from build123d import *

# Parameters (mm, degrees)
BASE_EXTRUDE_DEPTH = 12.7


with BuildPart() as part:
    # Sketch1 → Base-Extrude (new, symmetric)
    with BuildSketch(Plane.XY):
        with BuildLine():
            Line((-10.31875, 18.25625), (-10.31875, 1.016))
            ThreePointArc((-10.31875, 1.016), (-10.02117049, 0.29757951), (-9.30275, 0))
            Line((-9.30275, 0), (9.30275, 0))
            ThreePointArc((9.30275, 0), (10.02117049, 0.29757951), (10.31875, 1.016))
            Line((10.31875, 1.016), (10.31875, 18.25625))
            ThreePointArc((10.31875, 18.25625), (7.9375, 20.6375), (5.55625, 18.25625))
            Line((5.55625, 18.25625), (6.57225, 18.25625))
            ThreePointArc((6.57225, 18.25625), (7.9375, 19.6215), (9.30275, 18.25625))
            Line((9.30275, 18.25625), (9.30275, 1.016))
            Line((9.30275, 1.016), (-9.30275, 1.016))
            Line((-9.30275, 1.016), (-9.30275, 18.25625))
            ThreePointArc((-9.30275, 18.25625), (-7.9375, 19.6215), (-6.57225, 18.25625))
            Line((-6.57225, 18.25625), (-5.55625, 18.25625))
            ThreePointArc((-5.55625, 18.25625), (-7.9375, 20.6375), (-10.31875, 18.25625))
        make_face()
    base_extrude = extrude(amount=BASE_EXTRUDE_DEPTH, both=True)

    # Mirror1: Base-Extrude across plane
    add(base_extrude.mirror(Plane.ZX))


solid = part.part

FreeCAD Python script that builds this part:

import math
import FreeCAD as App
import Part
import Sketcher
Q = App.Units.Quantity

doc = App.newDocument("Part")
params = doc.addObject("Spreadsheet::Sheet", "Params")
for row, (alias, value) in enumerate([
    ("sketch1_radius", "0.04 in"),
    ("sketch1_radius2", "0.09375 in"),
    ("pad1_length", "1 in"),
], start=1):
    params.set(f"A{row}", alias)
    params.set(f"B{row}", "=" + value)
    params.setAlias(f"B{row}", alias)

body = doc.addObject("PartDesign::Body", "Body")

# Sketch on XY plane
sketch1 = body.newObject("Sketcher::SketchObject", "Sketch")
sketch1.AttachmentSupport = (doc.getObject("XY_Plane"), [""])
sketch1.MapMode = "FlatFace"
sketch1.addGeometry([
    Part.LineSegment(App.Vector(-10.3, 18.3, 0), App.Vector(-10.3, 1, 0)),  # 0
    Part.ArcOfCircle(Part.Circle(App.Vector(-9.3, 1, 0), App.Vector(0, 0, 1), 1), math.radians(180), math.radians(270)),  # 1
    Part.LineSegment(App.Vector(-9.3, 0, 0), App.Vector(9.3, 0, 0)),  # 2
    Part.ArcOfCircle(Part.Circle(App.Vector(9.3, 1, 0), App.Vector(0, 0, 1), 1), math.radians(-90), math.radians(0)),  # 3
    Part.LineSegment(App.Vector(10.3, 1, 0), App.Vector(10.3, 18.3, 0)),  # 4
    Part.ArcOfCircle(Part.Circle(App.Vector(7.9, 18.3, 0), App.Vector(0, 0, 1), 2.4), math.radians(0), math.radians(180)),  # 5
    Part.LineSegment(App.Vector(5.6, 18.3, 0), App.Vector(6.6, 18.3, 0)),  # 6
    Part.ArcOfCircle(Part.Circle(App.Vector(7.9, 18.3, 0), App.Vector(0, 0, 1), 1.4), math.radians(0), math.radians(180)),  # 7
    Part.LineSegment(App.Vector(9.3, 18.3, 0), App.Vector(9.3, 1, 0)),  # 8
    Part.LineSegment(App.Vector(9.3, 1, 0), App.Vector(-9.3, 1, 0)),  # 9
    Part.LineSegment(App.Vector(-9.3, 1, 0), App.Vector(-9.3, 18.3, 0)),  # 10
    Part.ArcOfCircle(Part.Circle(App.Vector(-7.9, 18.3, 0), App.Vector(0, 0, 1), 1.4), math.radians(0), math.radians(180)),  # 11
    Part.LineSegment(App.Vector(-6.6, 18.3, 0), App.Vector(-5.6, 18.3, 0)),  # 12
    Part.ArcOfCircle(Part.Circle(App.Vector(-7.9, 18.3, 0), App.Vector(0, 0, 1), 2.4), math.radians(0), math.radians(180)),  # 13
], False)
sketch1.addConstraint([
    Sketcher.Constraint("Tangent", 0, 2, 1, 1),
    Sketcher.Constraint("Tangent", 1, 2, 2, 1),
    Sketcher.Constraint("Tangent", 2, 2, 3, 1),
    Sketcher.Constraint("Tangent", 3, 2, 4, 1),
    Sketcher.Constraint("Tangent", 4, 2, 5, 1),
    Sketcher.Constraint("Coincident", 5, 2, 6, 1),
    Sketcher.Constraint("Coincident", 6, 2, 7, 2),
    Sketcher.Constraint("Tangent", 7, 1, 8, 1),
    Sketcher.Constraint("Coincident", 8, 2, 9, 1),
    Sketcher.Constraint("Coincident", 9, 2, 10, 1),
    Sketcher.Constraint("Tangent", 10, 2, 11, 2),
    Sketcher.Constraint("Coincident", 11, 1, 12, 1),
    Sketcher.Constraint("Coincident", 12, 2, 13, 1),
    Sketcher.Constraint("Tangent", 13, 2, 0, 1),
    Sketcher.Constraint("Vertical", 0),
    Sketcher.Constraint("Horizontal", 2),
    Sketcher.Constraint("Vertical", 4),
    Sketcher.Constraint("Horizontal", 6),
    Sketcher.Constraint("Vertical", 8),
    Sketcher.Constraint("Horizontal", 9),
    Sketcher.Constraint("Vertical", 10),
    Sketcher.Constraint("Horizontal", 12),
    Sketcher.Constraint("Coincident", 7, 3, 5, 3),
    Sketcher.Constraint("Coincident", 13, 3, 11, 3),
    Sketcher.Constraint("Coincident", 8, 2, 3, 3),
    Sketcher.Constraint("Coincident", 9, 2, 1, 3),
    Sketcher.Constraint("Equal", 7, 11),
    Sketcher.Constraint("Symmetric", 1, 2, 2, 2, -1, 1),
    Sketcher.Constraint("Horizontal", 7, 3, 11, 3),
    Sketcher.Constraint("Horizontal", 4, 2, 5, 2),
    Sketcher.Constraint("Horizontal", 10, 2, 11, 1),
    Sketcher.Constraint("Radius", 1, Q("0.04 in")),
    Sketcher.Constraint("Radius", 5, Q("0.09375 in")),
    Sketcher.Constraint("DistanceX", 2, 1, 2, 2, Q("0.7325 in")),
    Sketcher.Constraint("DistanceY", -1, 1, 5, 3, Q("0.71875 in")),
])
sketch1.setExpression("Constraints[31]", "Params.sketch1_radius")
sketch1.setExpression("Constraints[32]", "Params.sketch1_radius2")
pad1 = body.newObject("PartDesign::Pad", "Pad")
pad1.Profile = sketch1
pad1.setExpression("Length", "Params.pad1_length")
pad1.Midplane = True
doc.recompute()

mirrored = body.newObject("PartDesign::Mirrored", "Mirrored")
mirrored.Originals = [pad1]
mirrored.MirrorPlane = (doc.getObject("XZ_Plane"), [""])
body.Tip = mirrored

doc.recompute()
